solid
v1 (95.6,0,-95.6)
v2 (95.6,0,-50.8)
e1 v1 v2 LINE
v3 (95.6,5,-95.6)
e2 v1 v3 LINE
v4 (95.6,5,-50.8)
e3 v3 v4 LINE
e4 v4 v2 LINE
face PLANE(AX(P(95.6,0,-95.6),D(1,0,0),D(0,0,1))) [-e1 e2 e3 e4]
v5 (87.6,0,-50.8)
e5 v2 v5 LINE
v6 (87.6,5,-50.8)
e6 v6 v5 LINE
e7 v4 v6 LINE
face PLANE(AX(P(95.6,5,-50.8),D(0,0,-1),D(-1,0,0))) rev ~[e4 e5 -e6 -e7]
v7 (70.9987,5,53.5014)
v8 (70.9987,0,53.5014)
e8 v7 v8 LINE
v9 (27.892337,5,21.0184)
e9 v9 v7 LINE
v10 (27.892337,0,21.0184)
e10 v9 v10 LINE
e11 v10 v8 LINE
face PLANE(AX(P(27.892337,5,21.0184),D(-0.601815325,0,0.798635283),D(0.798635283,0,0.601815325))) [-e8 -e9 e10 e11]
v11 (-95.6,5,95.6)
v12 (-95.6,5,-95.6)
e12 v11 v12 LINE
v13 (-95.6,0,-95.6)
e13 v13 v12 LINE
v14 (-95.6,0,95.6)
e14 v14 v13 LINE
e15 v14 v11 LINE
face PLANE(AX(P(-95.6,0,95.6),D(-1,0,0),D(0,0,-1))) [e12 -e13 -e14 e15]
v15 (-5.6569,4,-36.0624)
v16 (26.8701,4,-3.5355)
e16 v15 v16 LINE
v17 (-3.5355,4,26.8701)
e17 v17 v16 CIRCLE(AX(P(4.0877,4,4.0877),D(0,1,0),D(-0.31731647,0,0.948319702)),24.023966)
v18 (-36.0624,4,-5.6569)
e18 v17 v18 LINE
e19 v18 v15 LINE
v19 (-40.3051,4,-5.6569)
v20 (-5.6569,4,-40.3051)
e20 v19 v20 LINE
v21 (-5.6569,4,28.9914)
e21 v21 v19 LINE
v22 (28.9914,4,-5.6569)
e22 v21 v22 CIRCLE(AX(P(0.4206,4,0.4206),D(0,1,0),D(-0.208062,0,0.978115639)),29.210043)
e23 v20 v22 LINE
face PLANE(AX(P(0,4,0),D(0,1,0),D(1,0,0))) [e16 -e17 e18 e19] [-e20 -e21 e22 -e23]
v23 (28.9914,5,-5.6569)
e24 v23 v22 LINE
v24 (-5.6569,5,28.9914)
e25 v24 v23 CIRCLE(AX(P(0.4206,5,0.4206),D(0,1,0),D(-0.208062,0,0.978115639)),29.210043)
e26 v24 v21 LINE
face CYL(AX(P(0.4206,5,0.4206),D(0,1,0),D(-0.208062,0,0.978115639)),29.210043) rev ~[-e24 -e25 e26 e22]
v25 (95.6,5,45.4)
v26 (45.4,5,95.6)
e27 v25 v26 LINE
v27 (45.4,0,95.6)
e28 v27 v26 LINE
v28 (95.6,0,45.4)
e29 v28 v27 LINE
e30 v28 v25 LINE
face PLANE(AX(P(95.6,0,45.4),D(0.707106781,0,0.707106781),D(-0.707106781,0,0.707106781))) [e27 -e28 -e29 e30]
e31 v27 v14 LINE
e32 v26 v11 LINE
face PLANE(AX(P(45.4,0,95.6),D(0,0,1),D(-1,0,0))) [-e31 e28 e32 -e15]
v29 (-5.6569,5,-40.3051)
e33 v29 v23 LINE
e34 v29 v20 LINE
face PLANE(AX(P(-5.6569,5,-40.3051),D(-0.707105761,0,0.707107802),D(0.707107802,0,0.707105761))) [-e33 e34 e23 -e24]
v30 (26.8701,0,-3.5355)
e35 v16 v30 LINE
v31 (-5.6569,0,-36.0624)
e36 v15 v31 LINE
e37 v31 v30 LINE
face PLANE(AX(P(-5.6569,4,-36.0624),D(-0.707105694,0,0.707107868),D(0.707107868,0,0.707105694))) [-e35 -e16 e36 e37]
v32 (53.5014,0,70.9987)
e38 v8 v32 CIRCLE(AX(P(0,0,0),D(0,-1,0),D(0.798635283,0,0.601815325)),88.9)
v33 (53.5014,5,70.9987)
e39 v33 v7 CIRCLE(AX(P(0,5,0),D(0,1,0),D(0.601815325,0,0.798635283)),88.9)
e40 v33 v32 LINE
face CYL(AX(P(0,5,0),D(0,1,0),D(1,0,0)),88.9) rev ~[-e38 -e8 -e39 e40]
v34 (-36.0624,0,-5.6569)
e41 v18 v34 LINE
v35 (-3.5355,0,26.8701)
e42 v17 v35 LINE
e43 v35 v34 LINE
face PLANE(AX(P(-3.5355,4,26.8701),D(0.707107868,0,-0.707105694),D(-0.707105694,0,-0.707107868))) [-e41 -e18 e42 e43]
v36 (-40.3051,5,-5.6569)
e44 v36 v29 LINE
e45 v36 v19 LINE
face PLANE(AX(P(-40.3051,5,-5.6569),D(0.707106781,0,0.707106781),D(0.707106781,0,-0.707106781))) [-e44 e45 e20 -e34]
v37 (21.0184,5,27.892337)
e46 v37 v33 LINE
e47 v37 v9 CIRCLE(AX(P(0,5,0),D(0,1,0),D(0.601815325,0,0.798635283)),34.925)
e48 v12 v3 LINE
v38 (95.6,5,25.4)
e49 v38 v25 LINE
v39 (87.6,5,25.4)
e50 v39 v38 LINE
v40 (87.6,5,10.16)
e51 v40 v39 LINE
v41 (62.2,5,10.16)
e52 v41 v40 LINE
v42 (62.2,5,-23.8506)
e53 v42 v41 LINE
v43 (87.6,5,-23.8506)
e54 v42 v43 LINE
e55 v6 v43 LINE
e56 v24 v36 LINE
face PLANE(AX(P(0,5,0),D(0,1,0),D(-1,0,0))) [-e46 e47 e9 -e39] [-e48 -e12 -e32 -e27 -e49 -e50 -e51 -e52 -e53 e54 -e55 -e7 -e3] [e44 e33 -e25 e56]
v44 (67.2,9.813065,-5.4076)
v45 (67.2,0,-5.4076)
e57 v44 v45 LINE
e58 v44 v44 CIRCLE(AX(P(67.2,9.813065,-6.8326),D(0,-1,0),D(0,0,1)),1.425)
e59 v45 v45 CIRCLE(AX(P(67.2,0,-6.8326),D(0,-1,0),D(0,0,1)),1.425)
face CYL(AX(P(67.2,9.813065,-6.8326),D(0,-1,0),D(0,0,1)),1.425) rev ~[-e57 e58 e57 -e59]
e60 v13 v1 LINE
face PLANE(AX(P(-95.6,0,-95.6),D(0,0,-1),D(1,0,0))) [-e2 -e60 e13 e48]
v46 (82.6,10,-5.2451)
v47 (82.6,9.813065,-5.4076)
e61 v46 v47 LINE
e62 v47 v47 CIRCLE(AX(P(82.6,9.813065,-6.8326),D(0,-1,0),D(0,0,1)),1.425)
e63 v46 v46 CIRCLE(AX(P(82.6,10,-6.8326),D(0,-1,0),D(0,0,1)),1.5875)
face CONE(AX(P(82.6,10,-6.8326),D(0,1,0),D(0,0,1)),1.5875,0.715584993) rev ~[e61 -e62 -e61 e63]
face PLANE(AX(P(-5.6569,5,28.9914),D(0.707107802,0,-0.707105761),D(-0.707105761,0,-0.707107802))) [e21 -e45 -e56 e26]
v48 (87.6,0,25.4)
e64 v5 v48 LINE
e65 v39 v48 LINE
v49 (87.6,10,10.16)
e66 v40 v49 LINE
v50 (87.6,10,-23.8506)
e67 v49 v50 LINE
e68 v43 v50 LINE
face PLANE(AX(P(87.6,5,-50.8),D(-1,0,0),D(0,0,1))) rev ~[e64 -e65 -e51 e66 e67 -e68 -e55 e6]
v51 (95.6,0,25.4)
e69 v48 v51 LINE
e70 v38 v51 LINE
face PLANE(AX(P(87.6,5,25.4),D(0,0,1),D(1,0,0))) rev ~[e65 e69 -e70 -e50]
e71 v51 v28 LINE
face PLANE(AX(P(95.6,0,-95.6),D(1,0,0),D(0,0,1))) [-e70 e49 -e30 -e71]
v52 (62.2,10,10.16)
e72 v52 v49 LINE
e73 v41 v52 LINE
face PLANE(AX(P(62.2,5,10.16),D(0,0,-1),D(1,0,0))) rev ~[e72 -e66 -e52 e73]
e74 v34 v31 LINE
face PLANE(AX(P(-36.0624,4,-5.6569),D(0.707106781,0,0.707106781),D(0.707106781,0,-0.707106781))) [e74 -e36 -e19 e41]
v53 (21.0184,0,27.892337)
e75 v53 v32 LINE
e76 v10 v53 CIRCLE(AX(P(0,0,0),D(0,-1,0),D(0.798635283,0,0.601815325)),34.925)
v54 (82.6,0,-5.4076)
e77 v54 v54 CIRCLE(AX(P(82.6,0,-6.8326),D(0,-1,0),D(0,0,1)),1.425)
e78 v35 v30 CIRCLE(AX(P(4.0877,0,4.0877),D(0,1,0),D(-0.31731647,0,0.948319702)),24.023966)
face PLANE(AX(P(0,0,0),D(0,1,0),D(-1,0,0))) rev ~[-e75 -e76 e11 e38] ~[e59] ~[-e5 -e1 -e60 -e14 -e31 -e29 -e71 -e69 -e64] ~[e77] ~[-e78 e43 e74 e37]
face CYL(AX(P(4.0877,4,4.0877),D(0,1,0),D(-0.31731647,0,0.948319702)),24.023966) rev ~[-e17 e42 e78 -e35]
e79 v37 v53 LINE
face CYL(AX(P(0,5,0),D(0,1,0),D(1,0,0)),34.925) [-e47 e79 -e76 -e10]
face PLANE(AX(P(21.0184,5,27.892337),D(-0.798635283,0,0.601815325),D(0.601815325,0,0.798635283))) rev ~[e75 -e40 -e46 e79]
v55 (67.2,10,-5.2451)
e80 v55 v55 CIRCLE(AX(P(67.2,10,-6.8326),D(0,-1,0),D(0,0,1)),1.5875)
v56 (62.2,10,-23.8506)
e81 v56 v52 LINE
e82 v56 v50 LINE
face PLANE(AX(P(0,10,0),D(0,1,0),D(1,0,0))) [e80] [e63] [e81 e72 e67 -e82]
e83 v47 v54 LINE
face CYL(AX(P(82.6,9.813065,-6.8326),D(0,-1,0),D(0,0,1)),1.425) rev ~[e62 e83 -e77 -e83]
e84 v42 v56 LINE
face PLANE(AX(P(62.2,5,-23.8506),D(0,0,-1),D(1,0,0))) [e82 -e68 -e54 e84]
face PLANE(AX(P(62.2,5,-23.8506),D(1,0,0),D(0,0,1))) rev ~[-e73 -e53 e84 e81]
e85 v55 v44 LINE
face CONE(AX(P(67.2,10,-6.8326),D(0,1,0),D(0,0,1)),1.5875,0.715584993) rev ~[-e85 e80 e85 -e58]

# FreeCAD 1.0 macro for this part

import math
import FreeCAD as App
import Part
import Sketcher
from FreeCAD import Vector
Q = App.Units.Quantity


def add_polygon(sketch, points):
    """Adds a closed chain of lines whose ends are joined by coincident constraints."""
    first, n = sketch.GeometryCount, len(points)
    for a, b in zip(points, points[1:] + points[:1]):
        sketch.addGeometry(Part.LineSegment(App.Vector(*a, 0), App.Vector(*b, 0)), False)
    for i in range(n):
        sketch.addConstraint(Sketcher.Constraint("Coincident", first + i, 2, first + (i + 1) % n, 1))

doc = App.newDocument("Part")
body = doc.addObject("PartDesign::Body", "Body")

# Sketch on XZ plane
sketch1 = body.newObject("Sketcher::SketchObject", "Sketch")
sketch1.AttachmentSupport = (doc.getObject("XZ_Plane"), [""])
sketch1.MapMode = "FlatFace"
add_polygon(sketch1, [(45, 96), (96, 45), (96, -96), (-96, -96), (-96, 96)])  # lines 0-4
sketch1.addConstraint([
    Sketcher.Constraint("Vertical", 1),
    Sketcher.Constraint("Horizontal", 2),
    Sketcher.Constraint("Vertical", 3),
    Sketcher.Constraint("Horizontal", 4),
    Sketcher.Constraint("Symmetric", 1, 2, 3, 2, -1, 1),
    Sketcher.Constraint("Equal", 4, 1),
    Sketcher.Constraint("Equal", 2, 3),
    Sketcher.Constraint("DistanceX", 4, 1, 4, 2, 141.0),
    Sketcher.Constraint("DistanceX", 2, 2, 2, 1, 191.2),
])
pad1 = body.newObject("PartDesign::Pad", "Pad")
pad1.Profile = sketch1
pad1.Length = 5
pad1.Reversed = True

# Sketch on XZ plane
sketch2 = body.newObject("Sketcher::SketchObject", "Sketch001")
sketch2.AttachmentSupport = (doc.getObject("XZ_Plane"), [""])
sketch2.MapMode = "FlatFace"
sketch2.AttachmentOffset = App.Placement(Vector(0, 0, -5), App.Rotation())
sketch2.addGeometry([
    Part.LineSegment(Vector(21, 28, 0), Vector(54, 71, 0)),
    Part.ArcOfCircle(Part.Circle(Vector(0, 0, 0), Vector(0, 0, 1), 89), math.radians(37), math.radians(53)),
    Part.LineSegment(Vector(71, 54, 0), Vector(28, 21, 0)),
    Part.ArcOfCircle(Part.Circle(Vector(0, 0, 0), Vector(0, 0, 1), 35), math.radians(37), math.radians(53)),
], False)
sketch2.addConstraint([
    Sketcher.Constraint("Coincident", 0, 2, 1, 2),
    Sketcher.Constraint("Coincident", 1, 1, 2, 1),
    Sketcher.Constraint("Coincident", 2, 2, 3, 1),
    Sketcher.Constraint("Coincident", 3, 2, 0, 1),
    Sketcher.Constraint("Coincident", 1, 3, -1, 1),
    Sketcher.Constraint("Coincident", 3, 3, -1, 1),
    Sketcher.Constraint("Radius", 1, 88.9),
    Sketcher.Constraint("Radius", 3, 34.925),
    Sketcher.Constraint("Angle", 0, Q("53 deg")),
    Sketcher.Constraint("Angle", 2, Q("-143 deg")),
    Sketcher.Constraint("DistanceX", 2, 2, 0, 2, 25.609),
    Sketcher.Constraint("DistanceY", 2, 2, 3, 2, 6.874),
])
pocket1 = body.newObject("PartDesign::Pocket", "Pocket")
pocket1.Profile = sketch2
pocket1.Length = 5
pocket1.Reversed = True

# Sketch on XZ plane
sketch3 = body.newObject("Sketcher::SketchObject", "Sketch002")
sketch3.AttachmentSupport = (doc.getObject("XZ_Plane"), [""])
sketch3.MapMode = "FlatFace"
sketch3.AttachmentOffset = App.Placement(Vector(0, 0, -5), App.Rotation())
sketch3.addGeometry([
    Part.LineSegment(Vector(-6, -40, 0), Vector(-40, -6, 0)),
    Part.LineSegment(Vector(-40, -6, 0), Vector(-6, 29, 0)),
    Part.ArcOfCircle(Part.Circle(Vector(0, 0, 0), Vector(0, 0, 1), 29), math.radians(-12), math.radians(102)),
    Part.LineSegment(Vector(29, -6, 0), Vector(-6, -40, 0)),
], False)
sketch3.addConstraint([
    Sketcher.Constraint("Coincident", 0, 2, 1, 1),
    Sketcher.Constraint("Coincident", 1, 2, 2, 2),
    Sketcher.Constraint("Coincident", 2, 1, 3, 1),
    Sketcher.Constraint("Coincident", 3, 2, 0, 1),
    Sketcher.Constraint("Perpendicular", 0, 1),
    Sketcher.Constraint("Parallel", 1, 3),
    Sketcher.Constraint("Horizontal", 0, 2, 2, 1),
    Sketcher.Constraint("Vertical", 1, 2, 3, 2),
    Sketcher.Constraint("Equal", 0, 1),
    Sketcher.Constraint("Radius", 2, 29.21),
    Sketcher.Constraint("Distance", 0, 49.0),
    Sketcher.Constraint("DistanceX", 0, 2, -1, 1, 40.305),
    Sketcher.Constraint("DistanceY", 0, 2, -1, 1, 5.657),
])
pocket2 = body.newObject("PartDesign::Pocket", "Pocket001")
pocket2.Profile = sketch3
pocket2.Length = 1
pocket2.Reversed = True

# Sketch on XZ plane
sketch4 = body.newObject("Sketcher::SketchObject", "Sketch003")
sketch4.AttachmentSupport = (doc.getObject("XZ_Plane"), [""])
sketch4.MapMode = "FlatFace"
sketch4.AttachmentOffset = App.Placement(Vector(0, 0, -4), App.Rotation())
sketch4.addGeometry([
    Part.LineSegment(Vector(-6, -36, 0), Vector(-36, -6, 0)),
    Part.LineSegment(Vector(-36, -6, 0), Vector(-4, 27, 0)),
    Part.ArcOfCircle(Part.Circle(Vector(4, 4, 0), Vector(0, 0, 1), 24), math.radians(-19), math.radians(109)),
    Part.LineSegment(Vector(27, -4, 0), Vector(-6, -36, 0)),
], False)
sketch4.addConstraint([
    Sketcher.Constraint("Coincident", 0, 2, 1, 1),
    Sketcher.Constraint("Coincident", 1, 2, 2, 2),
    Sketcher.Constraint("Coincident", 2, 1, 3, 1),
    Sketcher.Constraint("Coincident", 3, 2, 0, 1),
    Sketcher.Constraint("Perpendicular", 0, 1),
    Sketcher.Constraint("Parallel", 1, 3),
    Sketcher.Constraint("Equal", 1, 3),
    Sketcher.Constraint("Angle", 0, Q("135 deg")),
    Sketcher.Constraint("Distance", 1, 46.0),
    Sketcher.Constraint("Radius", 2, 24.024),
    Sketcher.Constraint("DistanceY", -1, 1, 1, 2, 26.87),
    Sketcher.Constraint("DistanceX", -1, 1, 2, 1, 26.87),
    Sketcher.Constraint("DistanceX", 0, 2, 2, 3, 40.15),
])
pocket3 = body.newObject("PartDesign::Pocket", "Pocket002")
pocket3.Profile = sketch4
pocket3.Length = 5
pocket3.Reversed = True

# Sketch on XZ plane
sketch5 = body.newObject("Sketcher::SketchObject", "Sketch004")
sketch5.AttachmentSupport = (doc.getObject("XZ_Plane"), [""])
sketch5.MapMode = "FlatFace"
sketch5.AttachmentOffset = App.Placement(Vector(0, 0, -5), App.Rotation())
add_polygon(sketch5, [(96, -51), (88, -51), (88, 25), (96, 25)])  # lines 0-3
sketch5.addConstraint([
    Sketcher.Constraint("Horizontal", 0),
    Sketcher.Constraint("Vertical", 1),
    Sketcher.Constraint("Horizontal", 2),
    Sketcher.Constraint("Vertical", 3),
    Sketcher.Constraint("DistanceX", 0, 2, 0, 1, 8.0),
    Sketcher.Constraint("DistanceY", 0, 2, -1, 1, 50.8),
    Sketcher.Constraint("DistanceY", -1, 1, 1, 2, 25.4),
    Sketcher.Constraint("DistanceX", -1, 1, 0, 2, 87.6),
])
pocket4 = body.newObject("PartDesign::Pocket", "Pocket003")
pocket4.Profile = sketch5
pocket4.Length = 25.4
pocket4.Reversed = True

# Sketch on XZ plane
sketch6 = body.newObject("Sketcher::SketchObject", "Sketch005")
sketch6.AttachmentSupport = (doc.getObject("XZ_Plane"), [""])
sketch6.MapMode = "FlatFace"
sketch6.AttachmentOffset = App.Placement(Vector(0, 0, -5), App.Rotation())
add_polygon(sketch6, [(88, 10), (88, -24), (62, -24), (62, 10)])  # lines 0-3
sketch6.addConstraint([
    Sketcher.Constraint("Vertical", 0),
    Sketcher.Constraint("Horizontal", 1),
    Sketcher.Constraint("Vertical", 2),
    Sketcher.Constraint("Horizontal", 3),
    Sketcher.Constraint("DistanceX", 1, 2, 1, 1, 25.4),
    Sketcher.Constraint("DistanceY", 0, 2, 0, 1, 34.0106),
    Sketcher.Constraint("DistanceX", -1, 1, 0, 2, 87.6),
    Sketcher.Constraint("DistanceY", -1, 1, 2, 2, 10.16),
])
pad2 = body.newObject("PartDesign::Pad", "Pad001")
pad2.Profile = sketch6
pad2.Length = 5
pad2.Reversed = True

# Sketch on XZ plane
sketch7 = body.newObject("Sketcher::SketchObject", "Sketch006")
sketch7.AttachmentSupport = (doc.getObject("XZ_Plane"), [""])
sketch7.MapMode = "FlatFace"
sketch7.AttachmentOffset = App.Placement(Vector(0, 0, -10), App.Rotation())
sketch7.addGeometry([
    Part.Circle(Vector(82.6, -6.8, 0), Vector(0, 0, 1), 1.4),
    Part.Circle(Vector(67.2, -6.8, 0), Vector(0, 0, 1), 1.4),
], False)
sketch7.addConstraint([
    Sketcher.Constraint("Equal", 0, 1),
    Sketcher.Constraint("Horizontal", 0, 3, 1, 3),
    Sketcher.Constraint("Diameter", 0, 2.85),
    Sketcher.Constraint("DistanceX", -1, 1, 0, 3, 82.6),
    Sketcher.Constraint("DistanceX", -1, 1, 1, 3, 67.2),
    Sketcher.Constraint("DistanceY", 0, 3, -1, 1, 6.8326),
])
doc.recompute()
hole = body.newObject("PartDesign::Hole", "Hole")
hole.Profile = sketch7
hole.ThreadType = "None"
hole.Diameter = 2.85
hole.DepthType = "Dimension"
hole.Depth = 12.7
hole.DrillPoint = "Angled"
hole.DrillPointAngle = 118
hole.HoleCutType = "Countersink"
hole.HoleCutDiameter = 3.175
hole.HoleCutCountersinkAngle = 82
hole.Reversed = True

doc.recompute()
